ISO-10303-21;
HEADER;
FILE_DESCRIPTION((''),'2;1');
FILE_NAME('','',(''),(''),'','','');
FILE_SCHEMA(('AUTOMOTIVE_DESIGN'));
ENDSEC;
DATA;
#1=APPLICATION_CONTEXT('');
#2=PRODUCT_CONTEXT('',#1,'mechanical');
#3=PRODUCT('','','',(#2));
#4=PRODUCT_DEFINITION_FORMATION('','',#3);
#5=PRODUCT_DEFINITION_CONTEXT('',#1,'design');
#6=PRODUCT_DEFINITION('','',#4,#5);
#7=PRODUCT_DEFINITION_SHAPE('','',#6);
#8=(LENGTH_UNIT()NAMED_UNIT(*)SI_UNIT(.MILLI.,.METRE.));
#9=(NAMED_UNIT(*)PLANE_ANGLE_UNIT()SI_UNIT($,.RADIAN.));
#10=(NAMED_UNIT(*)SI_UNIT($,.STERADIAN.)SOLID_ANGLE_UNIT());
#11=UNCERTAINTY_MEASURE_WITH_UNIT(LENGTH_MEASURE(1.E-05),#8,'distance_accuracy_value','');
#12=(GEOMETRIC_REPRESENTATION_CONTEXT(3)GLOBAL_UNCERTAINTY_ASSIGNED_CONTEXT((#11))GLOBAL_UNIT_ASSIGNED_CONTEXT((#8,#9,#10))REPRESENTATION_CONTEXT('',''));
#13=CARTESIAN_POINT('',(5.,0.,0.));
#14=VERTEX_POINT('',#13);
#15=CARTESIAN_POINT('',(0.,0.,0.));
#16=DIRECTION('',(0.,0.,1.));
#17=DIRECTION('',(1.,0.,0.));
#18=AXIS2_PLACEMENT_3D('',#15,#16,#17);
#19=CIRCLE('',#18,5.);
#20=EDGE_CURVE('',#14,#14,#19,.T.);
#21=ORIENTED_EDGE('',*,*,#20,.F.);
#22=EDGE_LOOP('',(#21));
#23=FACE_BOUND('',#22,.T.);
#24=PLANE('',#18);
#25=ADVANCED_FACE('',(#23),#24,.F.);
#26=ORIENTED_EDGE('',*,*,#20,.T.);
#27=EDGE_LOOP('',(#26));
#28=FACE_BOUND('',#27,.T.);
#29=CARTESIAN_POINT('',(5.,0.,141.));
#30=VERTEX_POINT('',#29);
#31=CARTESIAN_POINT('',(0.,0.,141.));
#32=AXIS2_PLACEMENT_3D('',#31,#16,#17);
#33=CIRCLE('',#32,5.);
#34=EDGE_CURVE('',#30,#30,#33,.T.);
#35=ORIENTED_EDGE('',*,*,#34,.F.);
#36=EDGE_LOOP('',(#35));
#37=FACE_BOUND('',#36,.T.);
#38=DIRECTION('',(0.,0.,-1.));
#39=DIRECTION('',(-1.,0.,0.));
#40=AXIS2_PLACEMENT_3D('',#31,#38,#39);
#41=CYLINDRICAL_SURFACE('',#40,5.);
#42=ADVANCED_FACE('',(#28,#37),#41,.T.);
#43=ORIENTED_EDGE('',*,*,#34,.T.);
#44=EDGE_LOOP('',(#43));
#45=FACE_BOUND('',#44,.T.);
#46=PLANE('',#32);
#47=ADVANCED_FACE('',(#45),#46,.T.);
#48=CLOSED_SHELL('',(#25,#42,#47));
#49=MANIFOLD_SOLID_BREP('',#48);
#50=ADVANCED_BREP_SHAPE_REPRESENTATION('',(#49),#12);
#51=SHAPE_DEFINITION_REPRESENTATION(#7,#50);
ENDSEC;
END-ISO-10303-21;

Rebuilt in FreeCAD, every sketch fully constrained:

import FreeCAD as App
import Part
import Sketcher
Q = App.Units.Quantity

doc = App.newDocument("Part")
body = doc.addObject("PartDesign::Body", "Body")

sketch1 = body.newObject("Sketcher::SketchObject", "Sketch")
sketch1.AttachmentSupport = (doc.getObject("XY_Plane"), [""])
sketch1.MapMode = "FlatFace"
sketch1.addGeometry(Part.Circle(App.Vector(0, 0, 0), App.Vector(0, 0, 1), 5), False)
sketch1.addConstraint(Sketcher.Constraint("Coincident", 0, 3, -1, 1))
sketch1.addConstraint(Sketcher.Constraint("Diameter", 0, Q("10 mm")))
pad1 = body.newObject("PartDesign::Pad", "Pad")
pad1.Profile = sketch1
pad1.Length = 141

doc.recompute()
